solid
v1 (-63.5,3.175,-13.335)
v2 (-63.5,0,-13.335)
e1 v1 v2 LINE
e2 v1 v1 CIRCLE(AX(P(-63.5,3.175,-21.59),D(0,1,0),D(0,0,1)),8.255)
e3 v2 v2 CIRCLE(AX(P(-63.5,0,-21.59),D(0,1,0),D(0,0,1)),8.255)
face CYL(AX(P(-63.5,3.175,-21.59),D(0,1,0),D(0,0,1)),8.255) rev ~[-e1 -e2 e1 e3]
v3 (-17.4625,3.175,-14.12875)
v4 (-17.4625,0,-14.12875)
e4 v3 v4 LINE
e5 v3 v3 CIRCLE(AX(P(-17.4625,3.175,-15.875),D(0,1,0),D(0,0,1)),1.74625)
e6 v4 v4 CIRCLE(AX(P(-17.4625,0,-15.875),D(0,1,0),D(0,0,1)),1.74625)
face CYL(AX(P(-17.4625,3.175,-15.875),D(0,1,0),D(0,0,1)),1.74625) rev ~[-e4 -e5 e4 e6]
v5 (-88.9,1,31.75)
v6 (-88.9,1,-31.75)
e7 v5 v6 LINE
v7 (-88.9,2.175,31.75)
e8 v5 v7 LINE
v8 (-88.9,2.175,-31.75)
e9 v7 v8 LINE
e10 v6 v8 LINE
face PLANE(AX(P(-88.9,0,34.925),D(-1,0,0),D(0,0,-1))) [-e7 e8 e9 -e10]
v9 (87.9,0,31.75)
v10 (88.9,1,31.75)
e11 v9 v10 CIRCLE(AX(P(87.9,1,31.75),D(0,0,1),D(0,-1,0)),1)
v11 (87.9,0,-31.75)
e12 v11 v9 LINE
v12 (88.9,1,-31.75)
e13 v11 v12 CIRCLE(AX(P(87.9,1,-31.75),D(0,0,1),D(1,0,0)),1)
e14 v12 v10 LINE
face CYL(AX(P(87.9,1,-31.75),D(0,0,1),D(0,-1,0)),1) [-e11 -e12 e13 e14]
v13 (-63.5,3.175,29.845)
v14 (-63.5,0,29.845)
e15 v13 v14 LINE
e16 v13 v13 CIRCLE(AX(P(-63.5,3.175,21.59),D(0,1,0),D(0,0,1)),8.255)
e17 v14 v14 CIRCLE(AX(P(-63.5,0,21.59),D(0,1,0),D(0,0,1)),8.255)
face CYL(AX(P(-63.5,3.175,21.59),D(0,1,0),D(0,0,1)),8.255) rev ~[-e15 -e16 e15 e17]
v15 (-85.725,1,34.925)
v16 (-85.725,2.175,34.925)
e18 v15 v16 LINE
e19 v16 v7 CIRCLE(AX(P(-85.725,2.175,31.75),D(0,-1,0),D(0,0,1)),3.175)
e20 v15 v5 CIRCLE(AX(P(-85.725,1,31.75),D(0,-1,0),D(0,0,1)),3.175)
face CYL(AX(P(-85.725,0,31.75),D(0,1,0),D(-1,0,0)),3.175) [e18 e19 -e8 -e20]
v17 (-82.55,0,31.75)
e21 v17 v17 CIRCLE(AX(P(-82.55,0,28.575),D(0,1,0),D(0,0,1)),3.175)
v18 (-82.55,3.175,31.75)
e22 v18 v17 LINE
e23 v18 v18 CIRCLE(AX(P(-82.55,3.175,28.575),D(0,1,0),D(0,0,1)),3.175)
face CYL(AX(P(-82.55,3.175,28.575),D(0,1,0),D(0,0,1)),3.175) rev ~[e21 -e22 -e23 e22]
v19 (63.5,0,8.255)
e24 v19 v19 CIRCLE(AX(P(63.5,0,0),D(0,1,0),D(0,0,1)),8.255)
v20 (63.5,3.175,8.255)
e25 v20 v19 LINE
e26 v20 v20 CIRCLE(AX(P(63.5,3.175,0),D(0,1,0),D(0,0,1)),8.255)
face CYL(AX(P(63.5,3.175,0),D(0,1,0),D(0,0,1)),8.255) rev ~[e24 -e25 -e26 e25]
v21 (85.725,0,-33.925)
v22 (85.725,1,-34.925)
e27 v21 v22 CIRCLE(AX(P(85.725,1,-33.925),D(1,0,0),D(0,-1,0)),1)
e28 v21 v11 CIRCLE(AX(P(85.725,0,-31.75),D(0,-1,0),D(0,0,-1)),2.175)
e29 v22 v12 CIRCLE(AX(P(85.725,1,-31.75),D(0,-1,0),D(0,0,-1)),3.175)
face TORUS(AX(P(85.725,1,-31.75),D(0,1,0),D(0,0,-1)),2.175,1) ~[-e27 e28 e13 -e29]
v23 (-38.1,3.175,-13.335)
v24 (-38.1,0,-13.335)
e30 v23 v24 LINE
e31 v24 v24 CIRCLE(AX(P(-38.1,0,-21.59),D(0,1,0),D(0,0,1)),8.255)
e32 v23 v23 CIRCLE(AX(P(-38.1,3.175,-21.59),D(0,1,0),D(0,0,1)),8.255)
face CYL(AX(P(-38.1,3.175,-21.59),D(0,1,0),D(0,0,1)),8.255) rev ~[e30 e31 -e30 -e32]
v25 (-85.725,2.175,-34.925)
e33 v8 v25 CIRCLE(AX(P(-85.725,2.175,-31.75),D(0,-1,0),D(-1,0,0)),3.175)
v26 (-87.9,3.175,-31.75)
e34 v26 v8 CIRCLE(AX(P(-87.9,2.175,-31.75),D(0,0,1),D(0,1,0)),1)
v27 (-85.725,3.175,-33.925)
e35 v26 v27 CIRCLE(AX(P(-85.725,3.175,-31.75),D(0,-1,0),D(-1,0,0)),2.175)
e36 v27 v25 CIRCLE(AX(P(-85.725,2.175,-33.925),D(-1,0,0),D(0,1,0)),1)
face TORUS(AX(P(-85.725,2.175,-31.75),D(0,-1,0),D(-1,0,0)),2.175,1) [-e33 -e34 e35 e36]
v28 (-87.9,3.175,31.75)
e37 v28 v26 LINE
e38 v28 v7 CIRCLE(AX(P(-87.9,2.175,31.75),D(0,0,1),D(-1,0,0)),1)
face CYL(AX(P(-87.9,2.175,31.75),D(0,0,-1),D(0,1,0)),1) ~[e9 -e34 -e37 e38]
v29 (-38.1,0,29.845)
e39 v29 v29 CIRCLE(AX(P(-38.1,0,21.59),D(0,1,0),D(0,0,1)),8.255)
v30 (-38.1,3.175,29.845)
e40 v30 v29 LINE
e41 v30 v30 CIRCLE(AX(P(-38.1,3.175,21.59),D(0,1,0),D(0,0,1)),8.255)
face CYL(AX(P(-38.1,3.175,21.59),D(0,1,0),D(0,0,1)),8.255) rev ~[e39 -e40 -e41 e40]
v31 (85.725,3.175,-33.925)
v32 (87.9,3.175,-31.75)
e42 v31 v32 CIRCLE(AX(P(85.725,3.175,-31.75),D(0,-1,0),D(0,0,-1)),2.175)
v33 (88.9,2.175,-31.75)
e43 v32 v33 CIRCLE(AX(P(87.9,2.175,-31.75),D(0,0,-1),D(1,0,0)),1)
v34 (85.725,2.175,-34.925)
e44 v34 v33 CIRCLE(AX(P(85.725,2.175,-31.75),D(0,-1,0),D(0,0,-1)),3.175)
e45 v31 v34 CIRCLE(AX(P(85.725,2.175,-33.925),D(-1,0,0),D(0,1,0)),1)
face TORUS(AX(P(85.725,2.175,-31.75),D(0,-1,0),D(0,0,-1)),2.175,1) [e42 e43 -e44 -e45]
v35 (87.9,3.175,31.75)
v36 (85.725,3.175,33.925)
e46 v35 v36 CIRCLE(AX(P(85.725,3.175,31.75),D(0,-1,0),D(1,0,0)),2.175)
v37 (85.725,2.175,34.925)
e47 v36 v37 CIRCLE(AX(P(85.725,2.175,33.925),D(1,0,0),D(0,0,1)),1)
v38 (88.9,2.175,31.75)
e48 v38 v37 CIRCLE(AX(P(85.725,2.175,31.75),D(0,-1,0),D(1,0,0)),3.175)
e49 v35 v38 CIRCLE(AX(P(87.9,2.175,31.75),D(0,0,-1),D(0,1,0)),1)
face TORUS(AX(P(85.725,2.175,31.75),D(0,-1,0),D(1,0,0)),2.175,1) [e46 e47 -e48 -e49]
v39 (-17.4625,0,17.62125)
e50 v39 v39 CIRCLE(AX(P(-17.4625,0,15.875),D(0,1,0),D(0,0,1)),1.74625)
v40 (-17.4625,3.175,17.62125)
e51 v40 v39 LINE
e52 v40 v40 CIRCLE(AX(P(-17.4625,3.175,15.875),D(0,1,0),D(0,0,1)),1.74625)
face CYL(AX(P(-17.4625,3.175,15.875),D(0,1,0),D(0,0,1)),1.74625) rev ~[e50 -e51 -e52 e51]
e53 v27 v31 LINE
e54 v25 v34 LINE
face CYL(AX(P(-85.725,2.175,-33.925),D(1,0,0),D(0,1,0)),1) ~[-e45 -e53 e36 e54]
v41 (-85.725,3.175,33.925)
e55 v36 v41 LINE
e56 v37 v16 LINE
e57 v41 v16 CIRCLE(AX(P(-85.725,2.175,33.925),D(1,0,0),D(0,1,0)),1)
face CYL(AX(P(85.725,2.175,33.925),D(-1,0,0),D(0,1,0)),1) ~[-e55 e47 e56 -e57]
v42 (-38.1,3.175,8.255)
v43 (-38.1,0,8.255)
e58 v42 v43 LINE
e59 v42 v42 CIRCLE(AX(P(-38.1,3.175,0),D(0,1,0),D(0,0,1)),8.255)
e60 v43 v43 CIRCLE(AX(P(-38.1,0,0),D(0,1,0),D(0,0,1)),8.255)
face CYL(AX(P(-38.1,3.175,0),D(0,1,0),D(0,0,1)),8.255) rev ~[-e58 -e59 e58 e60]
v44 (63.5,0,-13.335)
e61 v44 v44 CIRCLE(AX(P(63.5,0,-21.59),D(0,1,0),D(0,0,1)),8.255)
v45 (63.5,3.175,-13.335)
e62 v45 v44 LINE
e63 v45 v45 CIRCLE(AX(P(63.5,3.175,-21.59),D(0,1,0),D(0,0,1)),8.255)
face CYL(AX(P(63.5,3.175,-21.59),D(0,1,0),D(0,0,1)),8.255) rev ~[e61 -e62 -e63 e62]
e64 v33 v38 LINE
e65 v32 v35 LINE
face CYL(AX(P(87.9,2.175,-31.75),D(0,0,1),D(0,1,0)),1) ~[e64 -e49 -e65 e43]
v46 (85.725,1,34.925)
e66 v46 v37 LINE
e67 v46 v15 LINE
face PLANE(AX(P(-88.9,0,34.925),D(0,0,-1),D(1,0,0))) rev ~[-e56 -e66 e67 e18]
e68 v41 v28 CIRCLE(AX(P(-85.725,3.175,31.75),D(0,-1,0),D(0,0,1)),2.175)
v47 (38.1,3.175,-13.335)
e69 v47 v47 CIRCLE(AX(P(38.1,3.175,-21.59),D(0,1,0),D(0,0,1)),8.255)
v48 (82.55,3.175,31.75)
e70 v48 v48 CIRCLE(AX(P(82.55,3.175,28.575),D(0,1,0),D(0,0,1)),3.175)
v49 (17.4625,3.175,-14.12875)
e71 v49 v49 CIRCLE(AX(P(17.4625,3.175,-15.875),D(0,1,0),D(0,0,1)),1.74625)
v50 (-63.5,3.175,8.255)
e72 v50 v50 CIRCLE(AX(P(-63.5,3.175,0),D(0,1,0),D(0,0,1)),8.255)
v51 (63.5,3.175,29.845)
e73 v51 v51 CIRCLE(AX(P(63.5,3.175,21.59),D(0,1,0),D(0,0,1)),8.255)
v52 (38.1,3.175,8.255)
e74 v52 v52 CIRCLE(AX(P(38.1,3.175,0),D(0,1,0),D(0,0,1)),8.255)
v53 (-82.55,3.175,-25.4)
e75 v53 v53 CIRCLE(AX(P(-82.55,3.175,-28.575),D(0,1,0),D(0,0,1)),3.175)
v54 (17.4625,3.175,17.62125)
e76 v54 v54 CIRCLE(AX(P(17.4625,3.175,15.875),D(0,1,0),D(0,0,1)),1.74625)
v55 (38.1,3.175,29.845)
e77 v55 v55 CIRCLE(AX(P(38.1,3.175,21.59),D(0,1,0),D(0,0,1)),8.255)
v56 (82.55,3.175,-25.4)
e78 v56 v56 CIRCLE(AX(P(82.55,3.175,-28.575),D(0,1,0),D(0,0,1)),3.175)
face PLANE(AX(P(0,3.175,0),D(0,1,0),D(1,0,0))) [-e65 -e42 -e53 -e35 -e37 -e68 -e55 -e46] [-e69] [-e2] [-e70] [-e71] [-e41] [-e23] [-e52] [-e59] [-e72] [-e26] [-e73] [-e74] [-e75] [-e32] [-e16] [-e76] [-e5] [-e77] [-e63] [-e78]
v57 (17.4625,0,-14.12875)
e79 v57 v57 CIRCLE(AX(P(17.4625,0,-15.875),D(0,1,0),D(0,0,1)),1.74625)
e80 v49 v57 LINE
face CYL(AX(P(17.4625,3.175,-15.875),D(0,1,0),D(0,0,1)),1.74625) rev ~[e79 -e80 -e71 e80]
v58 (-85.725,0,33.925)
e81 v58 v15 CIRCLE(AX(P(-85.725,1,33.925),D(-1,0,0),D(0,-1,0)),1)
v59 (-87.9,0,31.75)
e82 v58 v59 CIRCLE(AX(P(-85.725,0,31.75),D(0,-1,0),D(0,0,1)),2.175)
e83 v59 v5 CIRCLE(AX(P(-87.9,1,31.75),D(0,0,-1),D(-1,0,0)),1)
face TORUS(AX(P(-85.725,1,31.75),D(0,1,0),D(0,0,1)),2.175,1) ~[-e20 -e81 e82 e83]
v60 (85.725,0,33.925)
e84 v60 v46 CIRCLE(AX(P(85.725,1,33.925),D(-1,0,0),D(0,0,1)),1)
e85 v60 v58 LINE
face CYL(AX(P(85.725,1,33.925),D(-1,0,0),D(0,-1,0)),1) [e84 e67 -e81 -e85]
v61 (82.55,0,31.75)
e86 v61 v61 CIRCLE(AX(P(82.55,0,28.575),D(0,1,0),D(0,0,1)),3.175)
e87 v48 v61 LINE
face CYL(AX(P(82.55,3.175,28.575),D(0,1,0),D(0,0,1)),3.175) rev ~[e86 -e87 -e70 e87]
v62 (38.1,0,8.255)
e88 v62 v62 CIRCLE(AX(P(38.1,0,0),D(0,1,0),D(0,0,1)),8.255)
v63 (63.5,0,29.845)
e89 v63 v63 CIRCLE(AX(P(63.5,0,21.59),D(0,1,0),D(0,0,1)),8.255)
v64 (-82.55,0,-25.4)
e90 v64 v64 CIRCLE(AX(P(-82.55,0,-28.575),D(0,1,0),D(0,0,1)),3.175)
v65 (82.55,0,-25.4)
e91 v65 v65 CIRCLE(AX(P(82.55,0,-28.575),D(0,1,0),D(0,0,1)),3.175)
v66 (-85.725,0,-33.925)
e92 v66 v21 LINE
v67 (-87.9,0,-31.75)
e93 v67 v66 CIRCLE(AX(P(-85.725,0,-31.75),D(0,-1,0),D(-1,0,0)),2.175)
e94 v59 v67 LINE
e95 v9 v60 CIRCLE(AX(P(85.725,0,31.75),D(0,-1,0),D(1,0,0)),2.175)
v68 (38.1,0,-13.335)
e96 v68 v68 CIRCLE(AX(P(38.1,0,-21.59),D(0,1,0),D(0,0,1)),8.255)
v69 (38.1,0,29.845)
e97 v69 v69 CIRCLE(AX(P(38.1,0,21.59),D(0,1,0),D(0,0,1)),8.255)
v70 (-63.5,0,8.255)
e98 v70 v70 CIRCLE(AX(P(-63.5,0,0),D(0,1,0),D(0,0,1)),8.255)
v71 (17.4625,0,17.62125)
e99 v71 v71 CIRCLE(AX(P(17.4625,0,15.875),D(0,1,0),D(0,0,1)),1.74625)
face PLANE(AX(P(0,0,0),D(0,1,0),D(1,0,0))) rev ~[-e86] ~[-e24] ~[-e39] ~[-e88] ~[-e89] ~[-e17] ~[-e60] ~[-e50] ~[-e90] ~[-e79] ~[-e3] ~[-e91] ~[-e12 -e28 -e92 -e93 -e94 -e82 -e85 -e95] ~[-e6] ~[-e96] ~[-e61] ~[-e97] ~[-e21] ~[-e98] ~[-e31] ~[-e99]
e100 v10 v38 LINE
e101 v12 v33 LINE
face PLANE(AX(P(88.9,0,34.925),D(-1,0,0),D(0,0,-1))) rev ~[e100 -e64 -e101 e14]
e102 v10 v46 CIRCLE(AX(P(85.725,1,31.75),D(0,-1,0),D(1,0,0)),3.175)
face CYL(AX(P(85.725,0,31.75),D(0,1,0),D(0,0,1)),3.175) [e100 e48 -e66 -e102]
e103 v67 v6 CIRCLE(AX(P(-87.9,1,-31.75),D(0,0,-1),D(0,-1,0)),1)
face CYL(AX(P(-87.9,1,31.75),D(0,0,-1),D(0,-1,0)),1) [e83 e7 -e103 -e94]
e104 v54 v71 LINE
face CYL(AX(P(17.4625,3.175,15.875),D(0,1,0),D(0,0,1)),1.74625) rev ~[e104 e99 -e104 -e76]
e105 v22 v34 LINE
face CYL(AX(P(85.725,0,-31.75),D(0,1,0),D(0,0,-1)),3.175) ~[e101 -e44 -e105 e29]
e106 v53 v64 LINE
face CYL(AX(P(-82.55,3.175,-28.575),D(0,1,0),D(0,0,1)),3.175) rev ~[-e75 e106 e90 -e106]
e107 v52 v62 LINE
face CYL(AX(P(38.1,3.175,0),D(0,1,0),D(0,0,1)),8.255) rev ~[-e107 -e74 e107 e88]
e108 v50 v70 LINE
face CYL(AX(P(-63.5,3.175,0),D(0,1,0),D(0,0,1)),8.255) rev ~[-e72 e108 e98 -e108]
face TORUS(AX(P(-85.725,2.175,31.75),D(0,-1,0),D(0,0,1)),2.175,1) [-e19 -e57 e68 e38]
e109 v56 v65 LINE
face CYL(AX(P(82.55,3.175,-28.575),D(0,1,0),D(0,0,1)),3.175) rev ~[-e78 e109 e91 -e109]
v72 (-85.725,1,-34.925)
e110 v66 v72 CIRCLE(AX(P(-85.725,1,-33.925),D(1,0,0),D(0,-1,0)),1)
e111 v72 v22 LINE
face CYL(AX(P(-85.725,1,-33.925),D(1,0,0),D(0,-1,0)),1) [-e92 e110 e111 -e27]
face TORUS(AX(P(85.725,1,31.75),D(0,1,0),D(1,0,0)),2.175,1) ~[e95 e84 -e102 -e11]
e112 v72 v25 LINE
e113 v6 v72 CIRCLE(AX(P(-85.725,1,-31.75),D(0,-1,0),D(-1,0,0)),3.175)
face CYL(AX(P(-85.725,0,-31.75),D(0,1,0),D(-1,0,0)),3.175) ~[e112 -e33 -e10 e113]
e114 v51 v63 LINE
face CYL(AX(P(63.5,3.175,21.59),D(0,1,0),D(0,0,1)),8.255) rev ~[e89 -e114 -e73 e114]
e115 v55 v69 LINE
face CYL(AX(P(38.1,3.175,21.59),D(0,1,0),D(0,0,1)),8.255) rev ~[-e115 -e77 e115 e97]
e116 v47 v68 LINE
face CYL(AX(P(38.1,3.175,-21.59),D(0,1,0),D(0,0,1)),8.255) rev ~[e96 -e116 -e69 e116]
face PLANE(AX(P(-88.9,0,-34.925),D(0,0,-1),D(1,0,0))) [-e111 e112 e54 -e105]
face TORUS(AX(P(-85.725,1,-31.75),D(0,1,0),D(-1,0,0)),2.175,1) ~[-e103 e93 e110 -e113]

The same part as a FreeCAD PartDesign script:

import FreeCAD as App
import Part
import Sketcher

V = App.Vector
Q = App.Units.Quantity


def edges_at(feature, points):
    """Names of the edges that pass closest to the given points."""
    edges = feature.Shape.Edges
    near = lambda p: min(range(len(edges)), key=lambda i: edges[i].distToShape(Part.Vertex(*p))[0])
    return sorted({f"Edge{near(p) + 1}" for p in points})

doc = App.newDocument("Part")
params = doc.addObject("Spreadsheet::Sheet", "Params")
for row, (alias, value) in enumerate([
    ("sketch1_width", "7 in"),
    ("sketch1_height", "2.75 in"),
    ("pad1_length", "0.125 in"),
    ("sketch2_diameter", "0.25 in"),
    ("fillet_radius", "0.125 in"),
    ("fillet2_radius", "1 mm"),
    ("sketch3_diameter", "0.65 in"),
], start=1):
    params.set(f"A{row}", alias)
    params.set(f"B{row}", "=" + value)
    params.setAlias(f"B{row}", alias)

body = doc.addObject("PartDesign::Body", "Body")

# Sketch on XZ plane
sketch1 = doc.addObject("Sketcher::SketchObject", "Sketch")
body.addObject(sketch1)
sketch1.AttachmentSupport = (doc.XZ_Plane, [""])
sketch1.MapMode = "FlatFace"
sketch1.addGeometry([
    Part.LineSegment(V(-89, -35, 0), V(-89, 35, 0)),
    Part.LineSegment(V(-89, 35, 0), V(89, 35, 0)),
    Part.LineSegment(V(89, 35, 0), V(89, -35, 0)),
    Part.LineSegment(V(89, -35, 0), V(-89, -35, 0)),
], False)
sketch1.addConstraint([
    Sketcher.Constraint("Coincident", 0, 2, 1, 1),
    Sketcher.Constraint("Coincident", 1, 2, 2, 1),
    Sketcher.Constraint("Coincident", 2, 2, 3, 1),
    Sketcher.Constraint("Coincident", 3, 2, 0, 1),
    Sketcher.Constraint("Vertical", 0),
    Sketcher.Constraint("Horizontal", 1),
    Sketcher.Constraint("Vertical", 2),
    Sketcher.Constraint("Horizontal", 3),
    Sketcher.Constraint("Symmetric", 0, 2, 2, 2, -1, 1),
    Sketcher.Constraint("DistanceX", 1, 1, 1, 2, Q("7 in")),
    Sketcher.Constraint("DistanceY", 0, 1, 0, 2, Q("2.75 in")),
])
sketch1.setExpression("Constraints[9]", "Params.sketch1_width")
sketch1.setExpression("Constraints[10]", "Params.sketch1_height")
pad1 = doc.addObject("PartDesign::Pad", "Pad")
body.addObject(pad1)
pad1.Profile = sketch1
pad1.setExpression("Length", "Params.pad1_length")
pad1.Reversed = True

# Sketch on XZ plane
sketch2 = doc.addObject("Sketcher::SketchObject", "Sketch001")
body.addObject(sketch2)
sketch2.AttachmentSupport = (doc.XZ_Plane, [""])
sketch2.MapMode = "FlatFace"
sketch2.AttachmentOffset = App.Placement(V(0, 0, -0.125 * 25.4), App.Rotation())
sketch2.addGeometry([
    Part.Circle(V(-82.5, -28.6, 0), V(0, 0, 1), 3.2),
    Part.Circle(V(-82.5, 28.6, 0), V(0, 0, 1), 3.2),
    Part.Circle(V(82.5, -28.6, 0), V(0, 0, 1), 3.2),
    Part.Circle(V(82.5, 28.6, 0), V(0, 0, 1), 3.2),
], False)
sketch2.addConstraint([
    Sketcher.Constraint("Equal", 0, 1),
    Sketcher.Constraint("Equal", 1, 2),
    Sketcher.Constraint("Equal", 2, 3),
    Sketcher.Constraint("Symmetric", 1, 3, 2, 3, -1, 1),
    Sketcher.Constraint("Symmetric", 0, 3, 3, 3, -1, 1),
    Sketcher.Constraint("Symmetric", 0, 3, 2, 3, -2),
    Sketcher.Constraint("Diameter", 0, Q("0.25 in")),
    Sketcher.Constraint("DistanceX", 0, 3, 2, 3, Q("6.5 in")),
    Sketcher.Constraint("DistanceY", 0, 3, 1, 3, Q("2.25 in")),
])
sketch2.setExpression("Constraints[6]", "Params.sketch2_diameter")
pocket1 = doc.addObject("PartDesign::Pocket", "Pocket")
body.addObject(pocket1)
pocket1.Profile = sketch2
pocket1.Type = "ThroughAll"
pocket1.Reversed = True
doc.recompute()

fillet = doc.addObject("PartDesign::Fillet", "Fillet")
body.addObject(fillet)
fillet.Base = (pocket1, edges_at(pocket1, [
    (88.9, 1.587, 34.925),
    (-88.9, 1.587, 34.925),
    (-88.9, 1.587, -34.925),
    (88.9, 1.587, -34.925),
]))
fillet.setExpression("Radius", "Params.fillet_radius")
doc.recompute()

fillet2 = doc.addObject("PartDesign::Fillet", "Fillet001")
body.addObject(fillet2)
fillet2.Base = (fillet, edges_at(fillet, [
    (0, 0, -34.925),
    (0, 3.175, -34.925),
    (88.9, 0, 0),
    (0, 0, 34.925),
    (-88.9, 0, 0),
    (-87.97, 0, 33.995),
    (-87.97, 0, -33.995),
    (87.97, 0, 33.995),
    (87.97, 0, -33.995),
    (88.9, 3.175, 0),
    (-88.9, 3.175, 0),
    (0, 3.175, 34.925),
    (-87.97, 3.175, 33.995),
    (-87.97, 3.175, -33.995),
    (87.97, 3.175, 33.995),
    (87.97, 3.175, -33.995),
]))
fillet2.setExpression("Radius", "Params.fillet2_radius")

# Sketch on XZ plane
sketch3 = doc.addObject("Sketcher::SketchObject", "Sketch002")
body.addObject(sketch3)
sketch3.AttachmentSupport = (doc.XZ_Plane, [""])
sketch3.MapMode = "FlatFace"
sketch3.AttachmentOffset = App.Placement(V(0, 0, -0.125 * 25.4), App.Rotation())
sketch3.addGeometry([
    Part.Circle(V(17.5, -15.9, 0), V(0, 0, 1), 1.7),  # 0
    Part.Circle(V(17.5, 15.9, 0), V(0, 0, 1), 1.7),  # 1
    Part.Circle(V(-17.5, 15.9, 0), V(0, 0, 1), 1.7),  # 2
    Part.Circle(V(-17.5, -15.9, 0), V(0, 0, 1), 1.7),  # 3
    Part.Circle(V(-63.5, -21.6, 0), V(0, 0, 1), 8.3),  # 4
    Part.Circle(V(-38.1, -21.6, 0), V(0, 0, 1), 8.3),  # 5
    Part.Circle(V(-38.1, 0, 0), V(0, 0, 1), 8.3),  # 6
    Part.Circle(V(-63.5, 0, 0), V(0, 0, 1), 8.3),  # 7
    Part.Circle(V(-38.1, 21.6, 0), V(0, 0, 1), 8.3),  # 8
    Part.Circle(V(-63.5, 21.6, 0), V(0, 0, 1), 8.3),  # 9
    Part.Circle(V(38.1, 21.6, 0), V(0, 0, 1), 8.3),  # 10
    Part.Circle(V(63.5, 21.6, 0), V(0, 0, 1), 8.3),  # 11
    Part.Circle(V(38.1, 0, 0), V(0, 0, 1), 8.3),  # 12
    Part.Circle(V(63.5, 0, 0), V(0, 0, 1), 8.3),  # 13
    Part.Circle(V(38.1, -21.6, 0), V(0, 0, 1), 8.3),  # 14
    Part.Circle(V(63.5, -21.6, 0), V(0, 0, 1), 8.3),  # 15
], False)
sketch3.addConstraint([
    Sketcher.Constraint("Equal", 0, 1),
    Sketcher.Constraint("Equal", 1, 2),
    Sketcher.Constraint("Equal", 2, 3),
    Sketcher.Constraint("Equal", 4, 5),
    Sketcher.Constraint("Equal", 5, 6),
    Sketcher.Constraint("Equal", 6, 7),
    Sketcher.Constraint("Equal", 7, 8),
    Sketcher.Constraint("Equal", 8, 9),
    Sketcher.Constraint("Equal", 9, 10),
    Sketcher.Constraint("Equal", 10, 11),
    Sketcher.Constraint("Equal", 11, 12),
    Sketcher.Constraint("Equal", 12, 13),
    Sketcher.Constraint("Equal", 13, 14),
    Sketcher.Constraint("Equal", 14, 15),
    Sketcher.Constraint("Symmetric", 0, 3, 2, 3, -1, 1),
    Sketcher.Constraint("Symmetric", 1, 3, 3, 3, -1, 1),
    Sketcher.Constraint("Symmetric", 5, 3, 10, 3, -1, 1),
    Sketcher.Constraint("Symmetric", 4, 3, 11, 3, -1, 1),
    Sketcher.Constraint("Symmetric", 6, 3, 12, 3, -1, 1),
    Sketcher.Constraint("Symmetric", 7, 3, 13, 3, -1, 1),
    Sketcher.Constraint("Symmetric", 8, 3, 14, 3, -1, 1),
    Sketcher.Constraint("Symmetric", 9, 3, 15, 3, -1, 1),
    Sketcher.Constraint("Symmetric", 1, 3, 2, 3, -2),
    Sketcher.Constraint("Symmetric", 8, 3, 10, 3, -2),
    Sketcher.Constraint("Symmetric", 9, 3, 11, 3, -2),
    Sketcher.Constraint("PointOnObject", 6, 3, -1),
    Sketcher.Constraint("PointOnObject", 7, 3, -1),
    Sketcher.Constraint("Horizontal", 4, 3, 5, 3),
    Sketcher.Constraint("Vertical", 5, 3, 6, 3),
    Sketcher.Constraint("Vertical", 4, 3, 7, 3),
    Sketcher.Constraint("Diameter", 4, Q("0.65 in")),
    Sketcher.Constraint("DistanceX", 4, 3, 5, 3, Q("1 in")),
    Sketcher.Constraint("DistanceX", 8, 3, 10, 3, Q("3 in")),
    Sketcher.Constraint("Diameter", 0, Q("0.1375 in")),
    Sketcher.Constraint("DistanceY", 5, 3, 8, 3, Q("1.7 in")),
    Sketcher.Constraint("DistanceY", 0, 3, 1, 3, Q("1.25 in")),
    Sketcher.Constraint("DistanceX", -1, 1, 0, 3, Q("0.6875 in")),
])
sketch3.setExpression("Constraints[30]", "Params.sketch3_diameter")
pocket2 = doc.addObject("PartDesign::Pocket", "Pocket001")
body.addObject(pocket2)
pocket2.Profile = sketch3
pocket2.Type = "ThroughAll"
pocket2.Reversed = True

doc.recompute()
